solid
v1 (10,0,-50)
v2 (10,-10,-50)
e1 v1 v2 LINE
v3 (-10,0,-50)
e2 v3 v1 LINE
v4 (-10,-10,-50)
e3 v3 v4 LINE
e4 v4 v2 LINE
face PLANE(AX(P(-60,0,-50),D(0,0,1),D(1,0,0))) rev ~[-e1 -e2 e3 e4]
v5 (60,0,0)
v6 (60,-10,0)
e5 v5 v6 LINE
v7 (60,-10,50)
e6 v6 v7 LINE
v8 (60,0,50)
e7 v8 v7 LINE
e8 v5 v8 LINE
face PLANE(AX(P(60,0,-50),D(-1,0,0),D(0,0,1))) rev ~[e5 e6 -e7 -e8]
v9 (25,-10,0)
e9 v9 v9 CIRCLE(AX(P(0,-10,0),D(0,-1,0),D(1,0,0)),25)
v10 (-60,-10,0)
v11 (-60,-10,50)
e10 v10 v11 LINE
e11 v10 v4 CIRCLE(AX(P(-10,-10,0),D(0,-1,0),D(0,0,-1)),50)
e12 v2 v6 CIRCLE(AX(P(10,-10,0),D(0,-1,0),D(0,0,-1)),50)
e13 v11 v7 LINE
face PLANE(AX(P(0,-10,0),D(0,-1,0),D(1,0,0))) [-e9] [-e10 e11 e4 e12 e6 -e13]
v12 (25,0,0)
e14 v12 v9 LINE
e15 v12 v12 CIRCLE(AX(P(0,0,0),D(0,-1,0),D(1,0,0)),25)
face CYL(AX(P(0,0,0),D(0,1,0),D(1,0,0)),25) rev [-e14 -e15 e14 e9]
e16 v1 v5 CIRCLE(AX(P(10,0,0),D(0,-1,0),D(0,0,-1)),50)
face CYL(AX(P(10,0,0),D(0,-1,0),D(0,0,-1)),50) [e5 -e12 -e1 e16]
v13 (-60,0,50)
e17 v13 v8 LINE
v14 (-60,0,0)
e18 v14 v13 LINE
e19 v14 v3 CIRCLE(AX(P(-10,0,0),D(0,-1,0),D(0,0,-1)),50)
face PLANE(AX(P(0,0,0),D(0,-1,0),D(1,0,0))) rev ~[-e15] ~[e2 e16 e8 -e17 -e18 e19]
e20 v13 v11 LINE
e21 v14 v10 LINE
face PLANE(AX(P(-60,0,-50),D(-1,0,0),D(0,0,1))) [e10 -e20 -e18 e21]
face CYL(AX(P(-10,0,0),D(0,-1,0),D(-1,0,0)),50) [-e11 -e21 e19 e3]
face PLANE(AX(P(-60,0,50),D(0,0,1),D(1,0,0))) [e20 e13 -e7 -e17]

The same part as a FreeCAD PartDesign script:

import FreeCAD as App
import Part
import Sketcher
Q = App.Units.Quantity


def edges_at(feature, points):
    """Names of the edges that pass closest to the given points."""
    edges = feature.Shape.Edges
    near = lambda p: min(range(len(edges)), key=lambda i: edges[i].distToShape(Part.Vertex(*p))[0])
    return sorted({f"Edge{near(p) + 1}" for p in points})


def add_polygon(sketch, points):
    """Adds a closed chain of lines whose ends are joined by coincident constraints."""
    first, n = sketch.GeometryCount, len(points)
    for a, b in zip(points, points[1:] + points[:1]):
        sketch.addGeometry(Part.LineSegment(App.Vector(*a, 0), App.Vector(*b, 0)), False)
    for i in range(n):
        sketch.addConstraint(Sketcher.Constraint("Coincident", first + i, 2, first + (i + 1) % n, 1))

doc = App.newDocument("Part")
body = doc.addObject("PartDesign::Body", "Body")

# Sketch on XZ plane
sketch1 = body.newObject("Sketcher::SketchObject", "Sketch")
sketch1.AttachmentSupport = (doc.getObject("XZ_Plane"), [""])
sketch1.MapMode = "FlatFace"
add_polygon(sketch1, [(-60, 50), (-60, -50), (60, -50), (60, 50)])  # lines 0-3
sketch1.addGeometry(Part.Circle(App.Vector(0, 0, 0), App.Vector(0, 0, 1), 25), False)  # 4
sketch1.addConstraint(Sketcher.Constraint("Vertical", 0))
sketch1.addConstraint(Sketcher.Constraint("Horizontal", 1))
sketch1.addConstraint(Sketcher.Constraint("Vertical", 2))
sketch1.addConstraint(Sketcher.Constraint("Horizontal", 3))
sketch1.addConstraint(Sketcher.Constraint("Coincident", 4, 3, -1, 1))
sketch1.addConstraint(Sketcher.Constraint("Symmetric", 0, 2, 2, 2, -1, 1))
sketch1.addConstraint(Sketcher.Constraint("Diameter", 4, Q("50 mm")))
sketch1.addConstraint(Sketcher.Constraint("DistanceX", 1, 1, 1, 2, Q("120 mm")))
sketch1.addConstraint(Sketcher.Constraint("DistanceY", 0, 2, 0, 1, Q("100 mm")))
pad1 = body.newObject("PartDesign::Pad", "Pad")
pad1.Profile = sketch1
pad1.Length = 10
doc.recompute()

fillet = body.newObject("PartDesign::Fillet", "Fillet")
fillet.Base = (pad1, edges_at(pad1, [(-60, -5, -50), (60, -5, -50)]))
fillet.Radius = 50

doc.recompute()
